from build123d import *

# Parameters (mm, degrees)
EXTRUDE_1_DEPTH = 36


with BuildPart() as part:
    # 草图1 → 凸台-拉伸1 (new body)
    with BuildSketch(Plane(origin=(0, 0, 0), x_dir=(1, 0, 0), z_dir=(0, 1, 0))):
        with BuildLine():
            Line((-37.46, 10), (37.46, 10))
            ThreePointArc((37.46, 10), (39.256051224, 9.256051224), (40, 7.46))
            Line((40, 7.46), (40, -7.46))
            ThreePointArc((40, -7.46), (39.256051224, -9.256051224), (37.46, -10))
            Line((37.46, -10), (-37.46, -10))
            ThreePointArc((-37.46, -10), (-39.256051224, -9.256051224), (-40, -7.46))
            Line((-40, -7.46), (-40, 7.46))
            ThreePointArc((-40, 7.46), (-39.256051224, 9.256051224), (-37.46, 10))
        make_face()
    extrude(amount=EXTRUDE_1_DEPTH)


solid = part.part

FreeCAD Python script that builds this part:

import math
import FreeCAD as App
import Part
import Sketcher
from FreeCAD import Vector

doc = App.newDocument("Part")
body = doc.addObject("PartDesign::Body", "Body")

# Sketch on XZ plane
sketch1 = body.newObject("Sketcher::SketchObject", "Sketch")
sketch1.AttachmentSupport = (doc.getObject("XZ_Plane"), [""])
sketch1.MapMode = "FlatFace"
sketch1.addGeometry(Part.LineSegment(Vector(37.5, -10, 0), Vector(-37.5, -10, 0)), False)
sketch1.addGeometry(Part.ArcOfCircle(Part.Circle(Vector(-37.5, -7.5, 0), Vector(0, 0, 1), 2.5), math.radians(-180), math.radians(-90)), False)
sketch1.addGeometry(Part.LineSegment(Vector(-40, -7.5, 0), Vector(-40, 7.5, 0)), False)
sketch1.addGeometry(Part.ArcOfCircle(Part.Circle(Vector(-37.5, 7.5, 0), Vector(0, 0, 1), 2.5), math.radians(90), math.radians(180)), False)
sketch1.addGeometry(Part.LineSegment(Vector(-37.5, 10, 0), Vector(37.5, 10, 0)), False)
sketch1.addGeometry(Part.ArcOfCircle(Part.Circle(Vector(37.5, 7.5, 0), Vector(0, 0, 1), 2.5), math.radians(0), math.radians(90)), False)
sketch1.addGeometry(Part.LineSegment(Vector(40, 7.5, 0), Vector(40, -7.5, 0)), False)
sketch1.addGeometry(Part.ArcOfCircle(Part.Circle(Vector(37.5, -7.5, 0), Vector(0, 0, 1), 2.5), math.radians(-90), math.radians(0)), False)
sketch1.addConstraint(Sketcher.Constraint("Tangent", 0, 2, 1, 2))
sketch1.addConstraint(Sketcher.Constraint("Tangent", 1, 1, 2, 1))
sketch1.addConstraint(Sketcher.Constraint("Tangent", 2, 2, 3, 2))
sketch1.addConstraint(Sketcher.Constraint("Tangent", 3, 1, 4, 1))
sketch1.addConstraint(Sketcher.Constraint("Tangent", 4, 2, 5, 2))
sketch1.addConstraint(Sketcher.Constraint("Tangent", 5, 1, 6, 1))
sketch1.addConstraint(Sketcher.Constraint("Tangent", 6, 2, 7, 2))
sketch1.addConstraint(Sketcher.Constraint("Tangent", 7, 1, 0, 1))
sketch1.addConstraint(Sketcher.Constraint("Horizontal", 0))
sketch1.addConstraint(Sketcher.Constraint("Vertical", 2))
sketch1.addConstraint(Sketcher.Constraint("Horizontal", 4))
sketch1.addConstraint(Sketcher.Constraint("Vertical", 6))
sketch1.addConstraint(Sketcher.Constraint("Equal", 1, 3))
sketch1.addConstraint(Sketcher.Constraint("Equal", 3, 5))
sketch1.addConstraint(Sketcher.Constraint("Equal", 5, 7))
sketch1.addConstraint(Sketcher.Constraint("Symmetric", 1, 3, 5, 3, -1, 1))
sketch1.addConstraint(Sketcher.Constraint("Radius", 1, 2.54))
sketch1.addConstraint(Sketcher.Constraint("DistanceY", 0, 2, -1, 1, 10.0))
sketch1.addConstraint(Sketcher.Constraint("DistanceX", 1, 1, -1, 1, 40.0))
pad1 = body.newObject("PartDesign::Pad", "Pad")
pad1.Profile = sketch1
pad1.Length = 36
pad1.Reversed = True

doc.recompute()
